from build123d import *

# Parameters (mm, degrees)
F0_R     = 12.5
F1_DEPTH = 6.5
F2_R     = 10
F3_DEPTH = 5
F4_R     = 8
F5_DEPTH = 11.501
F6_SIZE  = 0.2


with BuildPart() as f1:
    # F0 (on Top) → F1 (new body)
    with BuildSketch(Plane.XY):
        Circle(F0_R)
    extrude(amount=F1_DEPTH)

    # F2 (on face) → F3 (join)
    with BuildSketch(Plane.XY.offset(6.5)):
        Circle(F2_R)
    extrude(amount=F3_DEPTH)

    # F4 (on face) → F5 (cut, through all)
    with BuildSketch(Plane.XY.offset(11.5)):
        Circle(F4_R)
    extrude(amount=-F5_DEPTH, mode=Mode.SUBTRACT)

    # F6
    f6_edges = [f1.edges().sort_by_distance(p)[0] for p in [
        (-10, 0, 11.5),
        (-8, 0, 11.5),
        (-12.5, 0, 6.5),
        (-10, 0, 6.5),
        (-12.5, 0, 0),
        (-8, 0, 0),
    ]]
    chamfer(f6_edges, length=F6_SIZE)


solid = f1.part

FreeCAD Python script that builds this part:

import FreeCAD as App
import Part
import Sketcher
from FreeCAD import Vector


def edges_at(feature, points):
    """Names of the edges that pass closest to the given points."""
    edges = feature.Shape.Edges
    near = lambda p: min(range(len(edges)), key=lambda i: edges[i].distToShape(Part.Vertex(*p))[0])
    return sorted({f"Edge{near(p) + 1}" for p in points})

doc = App.newDocument("Part")
body = doc.addObject("PartDesign::Body", "Body")

# Sketch on XY plane
sketch1 = body.newObject("Sketcher::SketchObject", "Sketch")
sketch1.AttachmentSupport = (doc.getObject("XY_Plane"), [""])
sketch1.MapMode = "FlatFace"
sketch1.addGeometry(Part.Circle(Vector(0, 0, 0), Vector(0, 0, 1), 12), False)
sketch1.addConstraint(Sketcher.Constraint("Coincident", 0, 3, -1, 1))
sketch1.addConstraint(Sketcher.Constraint("Diameter", 0, 25.0))
pad1 = body.newObject("PartDesign::Pad", "Pad")
pad1.Profile = sketch1
pad1.Length = 6.5

# Sketch on XY plane
sketch2 = body.newObject("Sketcher::SketchObject", "Sketch001")
sketch2.AttachmentSupport = (doc.getObject("XY_Plane"), [""])
sketch2.MapMode = "FlatFace"
sketch2.AttachmentOffset = App.Placement(Vector(0, 0, 6.5), App.Rotation())
sketch2.addGeometry(Part.Circle(Vector(0, 0, 0), Vector(0, 0, 1), 10), False)
sketch2.addConstraint(Sketcher.Constraint("Coincident", 0, 3, -1, 1))
sketch2.addConstraint(Sketcher.Constraint("Diameter", 0, 20.0))
pad2 = body.newObject("PartDesign::Pad", "Pad001")
pad2.Profile = sketch2
pad2.Length = 5

# Sketch on XY plane
sketch3 = body.newObject("Sketcher::SketchObject", "Sketch002")
sketch3.AttachmentSupport = (doc.getObject("XY_Plane"), [""])
sketch3.MapMode = "FlatFace"
sketch3.AttachmentOffset = App.Placement(Vector(0, 0, 11.5), App.Rotation())
sketch3.addGeometry(Part.Circle(Vector(0, 0, 0), Vector(0, 0, 1), 8), False)
sketch3.addConstraint(Sketcher.Constraint("Coincident", 0, 3, -1, 1))
sketch3.addConstraint(Sketcher.Constraint("Diameter", 0, 16.0))
pocket1 = body.newObject("PartDesign::Pocket", "Pocket")
pocket1.Profile = sketch3
pocket1.Type = "ThroughAll"
doc.recompute()

chamfer = body.newObject("PartDesign::Chamfer", "Chamfer")
chamfer.Base = (pocket1, edges_at(pocket1, [
    (-10, 0, 11.5),
    (-8, 0, 11.5),
    (-12.5, 0, 6.5),
    (-10, 0, 6.5),
    (-12.5, 0, 0),
    (-8, 0, 0),
]))
chamfer.Size = 0.2

doc.recompute()
